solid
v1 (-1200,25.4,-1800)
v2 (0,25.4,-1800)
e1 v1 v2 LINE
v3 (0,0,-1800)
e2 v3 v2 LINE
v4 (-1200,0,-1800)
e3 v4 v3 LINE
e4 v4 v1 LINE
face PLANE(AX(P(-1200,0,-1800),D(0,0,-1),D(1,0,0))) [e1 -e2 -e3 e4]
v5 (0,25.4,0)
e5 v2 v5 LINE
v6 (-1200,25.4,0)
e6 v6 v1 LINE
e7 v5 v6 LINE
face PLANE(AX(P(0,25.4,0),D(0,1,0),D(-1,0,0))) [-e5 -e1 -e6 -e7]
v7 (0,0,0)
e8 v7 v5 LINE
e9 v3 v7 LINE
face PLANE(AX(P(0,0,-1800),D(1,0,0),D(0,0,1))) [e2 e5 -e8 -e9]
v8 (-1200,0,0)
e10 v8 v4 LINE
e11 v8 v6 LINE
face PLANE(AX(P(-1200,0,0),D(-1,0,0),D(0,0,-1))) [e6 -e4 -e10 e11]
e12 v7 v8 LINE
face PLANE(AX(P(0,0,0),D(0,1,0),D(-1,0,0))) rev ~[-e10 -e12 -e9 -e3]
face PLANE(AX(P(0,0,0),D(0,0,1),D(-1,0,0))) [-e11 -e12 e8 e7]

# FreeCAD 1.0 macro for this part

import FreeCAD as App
import Part
import Sketcher


def add_polygon(sketch, points):
    """Adds a closed chain of lines whose ends are joined by coincident constraints."""
    first, n = sketch.GeometryCount, len(points)
    for a, b in zip(points, points[1:] + points[:1]):
        sketch.addGeometry(Part.LineSegment(App.Vector(*a, 0), App.Vector(*b, 0)), False)
    for i in range(n):
        sketch.addConstraint(Sketcher.Constraint("Coincident", first + i, 2, first + (i + 1) % n, 1))

doc = App.newDocument("Part")
body = doc.addObject("PartDesign::Body", "Body")

# Sketch on XZ plane
sketch1 = doc.addObject("Sketcher::SketchObject", "Sketch")
body.addObject(sketch1)
sketch1.AttachmentSupport = (doc.XZ_Plane, [""])
sketch1.MapMode = "FlatFace"
add_polygon(sketch1, [(-1200, 0), (0, 0), (0, -1800), (-1200, -1800)])  # lines 0-3
sketch1.addConstraint([
    Sketcher.Constraint("Horizontal", 0),
    Sketcher.Constraint("Vertical", 1),
    Sketcher.Constraint("Horizontal", 2),
    Sketcher.Constraint("Vertical", 3),
    Sketcher.Constraint("Coincident", 0, 2, -1, 1),
    Sketcher.Constraint("DistanceX", 0, 1, 0, 2, 1200.0),
    Sketcher.Constraint("DistanceY", 1, 2, 1, 1, 1800.0),
])
pad1 = doc.addObject("PartDesign::Pad", "Pad")
body.addObject(pad1)
pad1.Profile = sketch1
pad1.Length = 25.4
pad1.Reversed = True

doc.recompute()
